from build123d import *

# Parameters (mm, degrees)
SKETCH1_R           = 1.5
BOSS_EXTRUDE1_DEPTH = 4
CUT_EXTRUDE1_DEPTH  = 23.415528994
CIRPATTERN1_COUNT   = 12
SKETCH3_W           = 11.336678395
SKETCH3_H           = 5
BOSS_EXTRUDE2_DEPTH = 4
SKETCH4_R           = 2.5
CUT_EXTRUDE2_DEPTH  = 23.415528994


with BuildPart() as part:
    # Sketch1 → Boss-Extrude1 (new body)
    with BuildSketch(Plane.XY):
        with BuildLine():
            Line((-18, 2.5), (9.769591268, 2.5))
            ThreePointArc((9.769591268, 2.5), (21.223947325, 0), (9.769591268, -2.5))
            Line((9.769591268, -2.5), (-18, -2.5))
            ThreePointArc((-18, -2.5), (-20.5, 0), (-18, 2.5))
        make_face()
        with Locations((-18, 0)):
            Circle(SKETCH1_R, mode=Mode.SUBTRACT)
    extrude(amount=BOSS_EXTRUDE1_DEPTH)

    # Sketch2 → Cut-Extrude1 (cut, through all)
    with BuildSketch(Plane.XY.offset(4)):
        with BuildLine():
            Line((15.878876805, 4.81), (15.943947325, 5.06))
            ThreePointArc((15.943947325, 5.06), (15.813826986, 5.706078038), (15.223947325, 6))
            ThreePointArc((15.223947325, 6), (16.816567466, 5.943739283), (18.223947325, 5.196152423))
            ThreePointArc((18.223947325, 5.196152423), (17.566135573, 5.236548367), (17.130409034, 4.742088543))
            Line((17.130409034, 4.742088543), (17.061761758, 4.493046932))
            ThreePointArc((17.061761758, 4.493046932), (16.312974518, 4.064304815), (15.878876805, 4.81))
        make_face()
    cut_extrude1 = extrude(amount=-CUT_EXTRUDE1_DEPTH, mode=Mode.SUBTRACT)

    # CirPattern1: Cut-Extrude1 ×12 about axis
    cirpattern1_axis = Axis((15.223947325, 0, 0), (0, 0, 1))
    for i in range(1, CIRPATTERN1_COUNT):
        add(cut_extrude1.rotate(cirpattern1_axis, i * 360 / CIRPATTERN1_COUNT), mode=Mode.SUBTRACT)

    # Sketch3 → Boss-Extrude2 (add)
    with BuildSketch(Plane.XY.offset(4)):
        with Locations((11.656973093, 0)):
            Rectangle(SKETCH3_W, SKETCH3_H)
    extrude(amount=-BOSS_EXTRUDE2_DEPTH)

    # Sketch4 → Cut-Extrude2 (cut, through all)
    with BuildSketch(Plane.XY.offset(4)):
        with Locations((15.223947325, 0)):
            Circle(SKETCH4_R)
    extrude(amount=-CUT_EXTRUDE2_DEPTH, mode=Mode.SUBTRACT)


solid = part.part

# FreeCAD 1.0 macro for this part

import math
import FreeCAD as App
import Part
import Sketcher

doc = App.newDocument("Part")
body = doc.addObject("PartDesign::Body", "Body")
body.AllowCompound = True

# Sketch on XY plane
sketch1 = body.newObject("Sketcher::SketchObject", "Sketch")
sketch1.AttachmentSupport = (doc.getObject("XY_Plane"), [""])
sketch1.MapMode = "FlatFace"
sketch1.addGeometry([
    Part.LineSegment(App.Vector(9.769591, 2.5, 0), App.Vector(-18, 2.5, 0)),  # 0
    Part.ArcOfCircle(Part.Circle(App.Vector(-18, 0, 0), App.Vector(0, 0, 1), 2.5), math.radians(90), math.radians(270)),  # 1
    Part.LineSegment(App.Vector(-18, -2.5, 0), App.Vector(9.769591, -2.5, 0)),  # 2
    Part.ArcOfCircle(Part.Circle(App.Vector(15.223947, 0, 0), App.Vector(0, 0, 1), 6), math.radians(-155.375682), math.radians(155.375682)),  # 3
    Part.Circle(App.Vector(-18, 0, 0), App.Vector(0, 0, 1), 1.5),  # 4
], False)
sketch1.addConstraint([
    Sketcher.Constraint("Tangent", 0, 2, 1, 1),
    Sketcher.Constraint("Tangent", 1, 2, 2, 1),
    Sketcher.Constraint("Coincident", 2, 2, 3, 1),
    Sketcher.Constraint("Coincident", 3, 2, 0, 1),
    Sketcher.Constraint("Horizontal", 0),
    Sketcher.Constraint("Horizontal", 2),
    Sketcher.Constraint("Coincident", 4, 3, 1, 3),
    Sketcher.Constraint("Symmetric", 2, 2, 3, 2, -1),
    Sketcher.Constraint("Diameter", 4, 3.0),
    Sketcher.Constraint("Radius", 3, 6.0),
    Sketcher.Constraint("Radius", 1, 2.5),
    Sketcher.Constraint("DistanceX", 1, 3, -1, 1, 18.0),
    Sketcher.Constraint("DistanceX", 0, 2, 0, 1, 27.769591),
])
pad1 = body.newObject("PartDesign::Pad", "Pad")
pad1.Profile = sketch1
pad1.Length = 4

# Sketch on XY plane
sketch2 = body.newObject("Sketcher::SketchObject", "Sketch001")
sketch2.AttachmentSupport = (doc.getObject("XY_Plane"), [""])
sketch2.MapMode = "FlatFace"
sketch2.AttachmentOffset = App.Placement(App.Vector(0, 0, 4), App.Rotation())
sketch2.addGeometry([
    Part.LineSegment(App.Vector(15.943947, 5.06, 0), App.Vector(15.878877, 4.81, 0)),  # 0
    Part.ArcOfCircle(Part.Circle(App.Vector(16.471455, 4.655762, 0), App.Vector(0, 0, 1), 0.612322), math.radians(165.410646), math.radians(344.589354)),  # 1
    Part.LineSegment(App.Vector(17.061762, 4.493047, 0), App.Vector(17.130409, 4.742089, 0)),  # 2
    Part.ArcOfCircle(Part.Circle(App.Vector(17.853746, 4.543887, 0), App.Vector(0, 0, 1), 0.75), math.radians(60.422385), math.radians(164.676459)),  # 3
    Part.ArcOfCircle(Part.Circle(App.Vector(15.898186, 2.516293, 0), App.Vector(0, 0, 1), 3.548353), math.radians(49.046366), math.radians(100.953634)),  # 4
    Part.ArcOfCircle(Part.Circle(App.Vector(15.218418, 5.25002, 0), App.Vector(0, 0, 1), 0.75), math.radians(-14.676459), math.radians(89.577616)),  # 5
], False)
sketch2.addConstraint([
    Sketcher.Constraint("Tangent", 0, 2, 1, 1),
    Sketcher.Constraint("Tangent", 1, 2, 2, 1),
    Sketcher.Constraint("Coincident", 2, 2, 3, 2),
    Sketcher.Constraint("Coincident", 3, 1, 4, 1),
    Sketcher.Constraint("Coincident", 4, 2, 5, 2),
    Sketcher.Constraint("Coincident", 5, 1, 0, 1),
    Sketcher.Constraint("Equal", 3, 5),
    Sketcher.Constraint("Equal", 0, 2),
    Sketcher.Constraint("Radius", 3, 0.75),
    Sketcher.Constraint("DistanceY", -1, 1, 4, 2, 6.0),
    Sketcher.Constraint("DistanceY", -1, 1, 0, 2, 4.81),
    Sketcher.Constraint("DistanceY", -1, 1, 5, 1, 5.06),
    Sketcher.Constraint("DistanceX", 4, 2, 5, 1, 0.72),
    Sketcher.Constraint("Radius", 1, 0.612322),
    Sketcher.Constraint("Radius", 4, 3.548353),
    Sketcher.Constraint("DistanceX", 3, 3, 3, 1, 0.370202),
    Sketcher.Constraint("Distance", 0, 0.25833),
    Sketcher.Constraint("DistanceX", -1, 1, 5, 3, 15.218418),
    Sketcher.Constraint("DistanceX", -1, 1, 1, 2, 17.061762),
    Sketcher.Constraint("DistanceX", 1, 3, 3, 3, 1.382291),
])
pocket1 = body.newObject("PartDesign::Pocket", "Pocket")
pocket1.Profile = sketch2
pocket1.Type = "ThroughAll"
doc.recompute()

datumline = body.newObject("PartDesign::Line", "DatumLine")
datumline.Placement = App.Placement(App.Vector(15.223947, 0, 0), App.Rotation(App.Vector(0, 0, 1), App.Vector(0, 0, 1)))
polarpattern = body.newObject("PartDesign::PolarPattern", "PolarPattern")
polarpattern.Originals = [pocket1]
polarpattern.Axis = (datumline, [""])
polarpattern.Angle = 360
polarpattern.Occurrences = 12
body.Tip = polarpattern

# Sketch on XY plane
sketch3 = body.newObject("Sketcher::SketchObject", "Sketch002")
sketch3.AttachmentSupport = (doc.getObject("XY_Plane"), [""])
sketch3.MapMode = "FlatFace"
sketch3.AttachmentOffset = App.Placement(App.Vector(0, 0, 4), App.Rotation())
sketch3.addGeometry([
    Part.LineSegment(App.Vector(5.988634, 2.5, 0), App.Vector(5.988634, -2.5, 0)),
    Part.LineSegment(App.Vector(5.988634, -2.5, 0), App.Vector(17.325312, -2.5, 0)),
    Part.LineSegment(App.Vector(17.325312, -2.5, 0), App.Vector(17.325312, 2.5, 0)),
    Part.LineSegment(App.Vector(17.325312, 2.5, 0), App.Vector(5.988634, 2.5, 0)),
], False)
sketch3.addConstraint([
    Sketcher.Constraint("Coincident", 0, 2, 1, 1),
    Sketcher.Constraint("Coincident", 1, 2, 2, 1),
    Sketcher.Constraint("Coincident", 2, 2, 3, 1),
    Sketcher.Constraint("Coincident", 3, 2, 0, 1),
    Sketcher.Constraint("Vertical", 0),
    Sketcher.Constraint("Horizontal", 1),
    Sketcher.Constraint("Vertical", 2),
    Sketcher.Constraint("Horizontal", 3),
    Sketcher.Constraint("DistanceY", 0, 2, 0, 1, 5.0),
    Sketcher.Constraint("DistanceY", 0, 2, -1, 1, 2.5),
    Sketcher.Constraint("DistanceX", 1, 1, 1, 2, 11.336678),
    Sketcher.Constraint("DistanceX", -1, 1, 0, 2, 5.988634),
])
pad2 = body.newObject("PartDesign::Pad", "Pad001")
pad2.Profile = sketch3
pad2.Length = 4
pad2.Reversed = True

# Sketch on XY plane
sketch4 = body.newObject("Sketcher::SketchObject", "Sketch003")
sketch4.AttachmentSupport = (doc.getObject("XY_Plane"), [""])
sketch4.MapMode = "FlatFace"
sketch4.AttachmentOffset = App.Placement(App.Vector(0, 0, 4), App.Rotation())
sketch4.addGeometry(Part.Circle(App.Vector(15.223947, 0, 0), App.Vector(0, 0, 1), 2.5), False)
sketch4.addConstraint([
    Sketcher.Constraint("PointOnObject", 0, 3, -1),
    Sketcher.Constraint("Diameter", 0, 5.0),
    Sketcher.Constraint("DistanceX", -1, 1, 0, 3, 15.223947),
])
pocket2 = body.newObject("PartDesign::Pocket", "Pocket001")
pocket2.Profile = sketch4
pocket2.Type = "ThroughAll"

doc.recompute()
